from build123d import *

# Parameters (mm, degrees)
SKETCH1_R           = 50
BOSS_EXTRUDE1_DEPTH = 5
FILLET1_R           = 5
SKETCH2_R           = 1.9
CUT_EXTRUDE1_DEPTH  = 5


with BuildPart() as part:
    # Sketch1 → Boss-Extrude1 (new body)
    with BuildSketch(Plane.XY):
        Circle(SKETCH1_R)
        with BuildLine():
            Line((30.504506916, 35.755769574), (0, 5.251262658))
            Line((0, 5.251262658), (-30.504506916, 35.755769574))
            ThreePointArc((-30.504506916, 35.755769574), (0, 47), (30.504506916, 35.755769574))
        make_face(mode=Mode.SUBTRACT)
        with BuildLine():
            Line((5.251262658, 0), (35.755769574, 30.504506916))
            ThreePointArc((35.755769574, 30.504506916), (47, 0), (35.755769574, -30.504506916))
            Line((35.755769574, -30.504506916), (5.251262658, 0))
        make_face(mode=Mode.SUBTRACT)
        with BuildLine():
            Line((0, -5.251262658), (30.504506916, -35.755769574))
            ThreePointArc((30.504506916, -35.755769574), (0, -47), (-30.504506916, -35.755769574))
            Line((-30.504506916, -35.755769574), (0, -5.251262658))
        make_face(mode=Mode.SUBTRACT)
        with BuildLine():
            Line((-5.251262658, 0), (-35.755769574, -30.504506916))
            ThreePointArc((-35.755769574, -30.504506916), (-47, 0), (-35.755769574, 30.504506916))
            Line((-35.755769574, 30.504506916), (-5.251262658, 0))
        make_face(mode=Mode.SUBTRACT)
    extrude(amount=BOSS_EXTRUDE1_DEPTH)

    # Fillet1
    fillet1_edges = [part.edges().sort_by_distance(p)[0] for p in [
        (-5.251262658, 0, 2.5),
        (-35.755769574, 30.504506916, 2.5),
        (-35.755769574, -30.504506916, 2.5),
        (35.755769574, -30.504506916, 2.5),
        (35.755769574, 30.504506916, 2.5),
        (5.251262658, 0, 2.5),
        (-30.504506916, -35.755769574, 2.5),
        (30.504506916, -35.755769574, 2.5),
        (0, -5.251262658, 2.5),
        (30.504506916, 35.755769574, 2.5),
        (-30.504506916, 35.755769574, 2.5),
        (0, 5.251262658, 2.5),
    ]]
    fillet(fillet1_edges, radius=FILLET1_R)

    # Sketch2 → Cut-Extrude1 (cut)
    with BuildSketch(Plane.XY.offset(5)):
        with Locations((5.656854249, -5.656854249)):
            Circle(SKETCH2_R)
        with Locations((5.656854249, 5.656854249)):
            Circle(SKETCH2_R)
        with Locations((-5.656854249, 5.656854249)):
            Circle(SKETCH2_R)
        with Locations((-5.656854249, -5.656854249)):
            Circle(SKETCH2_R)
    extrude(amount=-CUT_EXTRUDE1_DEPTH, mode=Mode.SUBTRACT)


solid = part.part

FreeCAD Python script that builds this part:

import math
import FreeCAD as App
import Part
import Sketcher
Q = App.Units.Quantity


def edges_at(feature, points):
    """Names of the edges that pass closest to the given points."""
    edges = feature.Shape.Edges
    near = lambda p: min(range(len(edges)), key=lambda i: edges[i].distToShape(Part.Vertex(*p))[0])
    return sorted({f"Edge{near(p) + 1}" for p in points})

doc = App.newDocument("Part")
body = doc.addObject("PartDesign::Body", "Body")

sketch1 = body.newObject("Sketcher::SketchObject", "Sketch")
sketch1.AttachmentSupport = (doc.getObject("XY_Plane"), [""])
sketch1.MapMode = "FlatFace"
sketch1.addGeometry(Part.Circle(App.Vector(0, 0, 0), App.Vector(0, 0, 1), 50), False)
sketch1.addGeometry(Part.LineSegment(App.Vector(-31, -36, 0), App.Vector(0, -5, 0)), False)
sketch1.addGeometry(Part.LineSegment(App.Vector(0, -5, 0), App.Vector(31, -36, 0)), False)
sketch1.addGeometry(Part.ArcOfCircle(Part.Circle(App.Vector(0, 0, 0), App.Vector(0, 0, 1), 47), math.radians(-130), math.radians(-50)), False)
sketch1.addGeometry(Part.LineSegment(App.Vector(36, -31, 0), App.Vector(5, 0, 0)), False)
sketch1.addGeometry(Part.LineSegment(App.Vector(5, 0, 0), App.Vector(36, 31, 0)), False)
sketch1.addGeometry(Part.ArcOfCircle(Part.Circle(App.Vector(0, 0, 0), App.Vector(0, 0, 1), 47), math.radians(-40), math.radians(40)), False)
sketch1.addGeometry(Part.LineSegment(App.Vector(-36, 31, 0), App.Vector(-5, 0, 0)), False)
sketch1.addGeometry(Part.LineSegment(App.Vector(-5, 0, 0), App.Vector(-36, -31, 0)), False)
sketch1.addGeometry(Part.ArcOfCircle(Part.Circle(App.Vector(0, 0, 0), App.Vector(0, 0, 1), 47), math.radians(140), math.radians(220)), False)
sketch1.addGeometry(Part.ArcOfCircle(Part.Circle(App.Vector(0, 0, 0), App.Vector(0, 0, 1), 47), math.radians(50), math.radians(130)), False)
sketch1.addGeometry(Part.LineSegment(App.Vector(31, 36, 0), App.Vector(0, 5, 0)), False)
sketch1.addGeometry(Part.LineSegment(App.Vector(0, 5, 0), App.Vector(-31, 36, 0)), False)
sketch1.addConstraint(Sketcher.Constraint("Coincident", 1, 2, 2, 1))
sketch1.addConstraint(Sketcher.Constraint("Coincident", 2, 2, 3, 2))
sketch1.addConstraint(Sketcher.Constraint("Coincident", 3, 1, 1, 1))
sketch1.addConstraint(Sketcher.Constraint("Coincident", 4, 2, 5, 1))
sketch1.addConstraint(Sketcher.Constraint("Coincident", 5, 2, 6, 2))
sketch1.addConstraint(Sketcher.Constraint("Coincident", 6, 1, 4, 1))
sketch1.addConstraint(Sketcher.Constraint("Coincident", 7, 2, 8, 1))
sketch1.addConstraint(Sketcher.Constraint("Coincident", 8, 2, 9, 2))
sketch1.addConstraint(Sketcher.Constraint("Coincident", 9, 1, 7, 1))
sketch1.addConstraint(Sketcher.Constraint("Coincident", 10, 1, 11, 1))
sketch1.addConstraint(Sketcher.Constraint("Coincident", 11, 2, 12, 1))
sketch1.addConstraint(Sketcher.Constraint("Coincident", 12, 2, 10, 2))
sketch1.addConstraint(Sketcher.Constraint("Coincident", 0, 3, -1, 1))
sketch1.addConstraint(Sketcher.Constraint("Coincident", 3, 3, -1, 1))
sketch1.addConstraint(Sketcher.Constraint("Coincident", 6, 3, -1, 1))
sketch1.addConstraint(Sketcher.Constraint("Coincident", 9, 3, -1, 1))
sketch1.addConstraint(Sketcher.Constraint("Coincident", 10, 3, -1, 1))
sketch1.addConstraint(Sketcher.Constraint("Equal", 3, 6))
sketch1.addConstraint(Sketcher.Constraint("Equal", 6, 9))
sketch1.addConstraint(Sketcher.Constraint("Equal", 9, 10))
sketch1.addConstraint(Sketcher.Constraint("Symmetric", 4, 2, 7, 2, -1, 1))
sketch1.addConstraint(Sketcher.Constraint("Symmetric", 1, 2, 11, 2, -1, 1))
sketch1.addConstraint(Sketcher.Constraint("PointOnObject", 1, 2, -2))
sketch1.addConstraint(Sketcher.Constraint("PointOnObject", 4, 2, -1))
sketch1.addConstraint(Sketcher.Constraint("Perpendicular", 1, 2))
sketch1.addConstraint(Sketcher.Constraint("Parallel", 2, 4))
sketch1.addConstraint(Sketcher.Constraint("Perpendicular", 4, 5))
sketch1.addConstraint(Sketcher.Constraint("Perpendicular", 5, 7))
sketch1.addConstraint(Sketcher.Constraint("Perpendicular", 7, 8))
sketch1.addConstraint(Sketcher.Constraint("Parallel", 8, 11))
sketch1.addConstraint(Sketcher.Constraint("Perpendicular", 11, 12))
sketch1.addConstraint(Sketcher.Constraint("Horizontal", 2, 2, 3, 1))
sketch1.addConstraint(Sketcher.Constraint("Equal", 2, 4))
sketch1.addConstraint(Sketcher.Constraint("Diameter", 0, Q("100 mm")))
sketch1.addConstraint(Sketcher.Constraint("Radius", 3, Q("47 mm")))
sketch1.addConstraint(Sketcher.Constraint("DistanceY", 2, 2, -1, 1, Q("35.75577 mm")))
pad1 = body.newObject("PartDesign::Pad", "Pad")
pad1.Profile = sketch1
pad1.Length = 5
doc.recompute()

fillet = body.newObject("PartDesign::Fillet", "Fillet")
fillet.Base = (pad1, edges_at(pad1, [
    (-5.251, 0, 2.5),
    (-35.756, 30.505, 2.5),
    (-35.756, -30.505, 2.5),
    (35.756, -30.505, 2.5),
    (35.756, 30.505, 2.5),
    (5.251, 0, 2.5),
    (-30.505, -35.756, 2.5),
    (30.505, -35.756, 2.5),
    (0, -5.251, 2.5),
    (30.505, 35.756, 2.5),
    (-30.505, 35.756, 2.5),
    (0, 5.251, 2.5),
]))
fillet.Radius = 5

sketch2 = body.newObject("Sketcher::SketchObject", "Sketch001")
sketch2.AttachmentSupport = (doc.getObject("XY_Plane"), [""])
sketch2.MapMode = "FlatFace"
sketch2.AttachmentOffset = App.Placement(App.Vector(0, 0, 5), App.Rotation())
sketch2.addGeometry(Part.Circle(App.Vector(5.7, -5.7, 0), App.Vector(0, 0, 1), 1.9), False)
sketch2.addGeometry(Part.Circle(App.Vector(5.7, 5.7, 0), App.Vector(0, 0, 1), 1.9), False)
sketch2.addGeometry(Part.Circle(App.Vector(-5.7, 5.7, 0), App.Vector(0, 0, 1), 1.9), False)
sketch2.addGeometry(Part.Circle(App.Vector(-5.7, -5.7, 0), App.Vector(0, 0, 1), 1.9), False)
sketch2.addConstraint(Sketcher.Constraint("Equal", 0, 1))
sketch2.addConstraint(Sketcher.Constraint("Equal", 1, 2))
sketch2.addConstraint(Sketcher.Constraint("Equal", 2, 3))
sketch2.addConstraint(Sketcher.Constraint("Symmetric", 0, 3, 2, 3, -1, 1))
sketch2.addConstraint(Sketcher.Constraint("Symmetric", 1, 3, 3, 3, -1, 1))
sketch2.addConstraint(Sketcher.Constraint("Symmetric", 1, 3, 2, 3, -2))
sketch2.addConstraint(Sketcher.Constraint("Diameter", 0, Q("3.8 mm")))
sketch2.addConstraint(Sketcher.Constraint("DistanceY", 0, 3, 1, 3, Q("11.313708 mm")))
sketch2.addConstraint(Sketcher.Constraint("DistanceX", 2, 3, 1, 3, Q("11.313708 mm")))
pocket1 = body.newObject("PartDesign::Pocket", "Pocket")
pocket1.Profile = sketch2
pocket1.Length = 5

doc.recompute()
